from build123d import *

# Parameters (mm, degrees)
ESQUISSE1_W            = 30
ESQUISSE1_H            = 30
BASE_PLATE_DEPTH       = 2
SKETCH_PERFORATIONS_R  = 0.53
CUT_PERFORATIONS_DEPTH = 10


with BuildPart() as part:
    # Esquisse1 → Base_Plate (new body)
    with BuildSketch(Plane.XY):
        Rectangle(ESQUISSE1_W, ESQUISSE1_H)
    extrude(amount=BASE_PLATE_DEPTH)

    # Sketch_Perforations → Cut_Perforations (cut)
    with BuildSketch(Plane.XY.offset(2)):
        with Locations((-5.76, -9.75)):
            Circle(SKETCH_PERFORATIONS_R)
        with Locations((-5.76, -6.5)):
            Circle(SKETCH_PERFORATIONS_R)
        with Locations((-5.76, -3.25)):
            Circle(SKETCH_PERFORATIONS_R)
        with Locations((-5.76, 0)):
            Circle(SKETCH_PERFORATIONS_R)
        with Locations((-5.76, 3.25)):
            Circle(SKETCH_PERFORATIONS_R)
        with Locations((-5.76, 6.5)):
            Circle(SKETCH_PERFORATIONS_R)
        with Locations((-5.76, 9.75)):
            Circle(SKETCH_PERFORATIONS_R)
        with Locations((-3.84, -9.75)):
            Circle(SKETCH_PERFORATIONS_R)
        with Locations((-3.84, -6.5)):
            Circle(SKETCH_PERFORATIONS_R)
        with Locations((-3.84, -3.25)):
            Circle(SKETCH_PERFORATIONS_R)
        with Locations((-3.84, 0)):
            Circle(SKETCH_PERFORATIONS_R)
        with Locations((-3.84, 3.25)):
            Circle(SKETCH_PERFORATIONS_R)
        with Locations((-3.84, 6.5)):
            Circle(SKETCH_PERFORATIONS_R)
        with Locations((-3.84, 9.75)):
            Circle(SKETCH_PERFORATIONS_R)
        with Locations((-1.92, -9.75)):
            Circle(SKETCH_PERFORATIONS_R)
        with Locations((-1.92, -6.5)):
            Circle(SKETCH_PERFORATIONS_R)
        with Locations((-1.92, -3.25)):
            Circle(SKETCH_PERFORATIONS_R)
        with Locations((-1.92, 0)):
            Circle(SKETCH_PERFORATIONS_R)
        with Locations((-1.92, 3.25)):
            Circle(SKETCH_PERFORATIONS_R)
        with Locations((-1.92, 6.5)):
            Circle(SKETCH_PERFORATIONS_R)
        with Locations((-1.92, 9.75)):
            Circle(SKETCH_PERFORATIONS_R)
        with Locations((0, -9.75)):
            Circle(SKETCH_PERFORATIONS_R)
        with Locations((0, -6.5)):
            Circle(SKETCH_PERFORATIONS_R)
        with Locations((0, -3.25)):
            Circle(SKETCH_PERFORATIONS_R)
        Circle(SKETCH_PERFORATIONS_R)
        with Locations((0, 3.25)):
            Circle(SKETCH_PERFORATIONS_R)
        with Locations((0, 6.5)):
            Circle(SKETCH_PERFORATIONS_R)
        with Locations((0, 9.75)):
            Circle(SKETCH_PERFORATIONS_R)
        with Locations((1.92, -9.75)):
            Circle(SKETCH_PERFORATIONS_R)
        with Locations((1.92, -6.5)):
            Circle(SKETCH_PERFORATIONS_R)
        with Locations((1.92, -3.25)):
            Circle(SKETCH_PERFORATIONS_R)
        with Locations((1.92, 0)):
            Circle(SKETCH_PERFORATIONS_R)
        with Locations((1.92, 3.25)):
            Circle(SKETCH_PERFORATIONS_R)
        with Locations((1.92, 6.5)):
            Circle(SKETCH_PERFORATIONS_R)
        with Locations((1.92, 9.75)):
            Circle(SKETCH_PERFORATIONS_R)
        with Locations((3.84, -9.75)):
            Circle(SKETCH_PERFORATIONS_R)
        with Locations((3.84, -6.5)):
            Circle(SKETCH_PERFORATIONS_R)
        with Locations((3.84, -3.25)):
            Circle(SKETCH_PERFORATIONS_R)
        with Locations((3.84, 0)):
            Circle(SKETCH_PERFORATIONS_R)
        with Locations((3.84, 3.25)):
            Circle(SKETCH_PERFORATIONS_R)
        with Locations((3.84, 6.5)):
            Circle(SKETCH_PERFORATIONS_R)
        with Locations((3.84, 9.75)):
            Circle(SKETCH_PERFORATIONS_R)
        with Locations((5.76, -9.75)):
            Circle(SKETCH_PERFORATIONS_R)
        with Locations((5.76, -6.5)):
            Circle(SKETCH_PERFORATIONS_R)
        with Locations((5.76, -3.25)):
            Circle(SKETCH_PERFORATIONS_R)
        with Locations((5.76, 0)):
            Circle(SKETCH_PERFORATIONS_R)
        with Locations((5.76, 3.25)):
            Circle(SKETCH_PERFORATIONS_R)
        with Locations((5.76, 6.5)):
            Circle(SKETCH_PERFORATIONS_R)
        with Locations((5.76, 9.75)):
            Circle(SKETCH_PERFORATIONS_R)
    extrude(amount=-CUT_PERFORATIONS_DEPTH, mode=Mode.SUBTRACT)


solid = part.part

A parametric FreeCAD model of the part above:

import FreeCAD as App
import Part
import Sketcher

V = App.Vector


def add_polygon(sketch, points):
    """Adds a closed chain of lines whose ends are joined by coincident constraints."""
    first, n = sketch.GeometryCount, len(points)
    for a, b in zip(points, points[1:] + points[:1]):
        sketch.addGeometry(Part.LineSegment(App.Vector(*a, 0), App.Vector(*b, 0)), False)
    for i in range(n):
        sketch.addConstraint(Sketcher.Constraint("Coincident", first + i, 2, first + (i + 1) % n, 1))

doc = App.newDocument("Part")
body = doc.addObject("PartDesign::Body", "Body")

# Sketch on XY plane
sketch1 = doc.addObject("Sketcher::SketchObject", "Sketch")
body.addObject(sketch1)
sketch1.AttachmentSupport = (doc.XY_Plane, [""])
sketch1.MapMode = "FlatFace"
add_polygon(sketch1, [(-15, 15), (-15, -15), (15, -15), (15, 15)])  # lines 0-3
sketch1.addConstraint([
    Sketcher.Constraint("Vertical", 0),
    Sketcher.Constraint("Horizontal", 1),
    Sketcher.Constraint("Vertical", 2),
    Sketcher.Constraint("Horizontal", 3),
    Sketcher.Constraint("Symmetric", 0, 2, 2, 2, -1, 1),
    Sketcher.Constraint("Equal", 3, 0),
    Sketcher.Constraint("DistanceX", 1, 1, 1, 2, 30.0),
])
pad1 = doc.addObject("PartDesign::Pad", "Pad")
body.addObject(pad1)
pad1.Profile = sketch1
pad1.Length = 2

# Sketch on XY plane
sketch2 = doc.addObject("Sketcher::SketchObject", "Sketch001")
body.addObject(sketch2)
sketch2.AttachmentSupport = (doc.XY_Plane, [""])
sketch2.MapMode = "FlatFace"
sketch2.AttachmentOffset = App.Placement(V(0, 0, 2), App.Rotation())
sketch2.addGeometry([
    Part.Circle(V(-5.8, -9.8, 0), V(0, 0, 1), 0.5),  # 0
    Part.Circle(V(-5.8, -6.5, 0), V(0, 0, 1), 0.5),  # 1
    Part.Circle(V(-5.8, -3.2, 0), V(0, 0, 1), 0.5),  # 2
    Part.Circle(V(-5.8, 0, 0), V(0, 0, 1), 0.5),  # 3
    Part.Circle(V(-5.8, 3.2, 0), V(0, 0, 1), 0.5),  # 4
    Part.Circle(V(-5.8, 6.5, 0), V(0, 0, 1), 0.5),  # 5
    Part.Circle(V(-5.8, 9.8, 0), V(0, 0, 1), 0.5),  # 6
    Part.Circle(V(-3.8, -9.8, 0), V(0, 0, 1), 0.5),  # 7
    Part.Circle(V(-3.8, -6.5, 0), V(0, 0, 1), 0.5),  # 8
    Part.Circle(V(-3.8, -3.2, 0), V(0, 0, 1), 0.5),  # 9
    Part.Circle(V(-3.8, 0, 0), V(0, 0, 1), 0.5),  # 10
    Part.Circle(V(-3.8, 3.2, 0), V(0, 0, 1), 0.5),  # 11
    Part.Circle(V(-3.8, 6.5, 0), V(0, 0, 1), 0.5),  # 12
    Part.Circle(V(-3.8, 9.8, 0), V(0, 0, 1), 0.5),  # 13
    Part.Circle(V(-1.9, -9.8, 0), V(0, 0, 1), 0.5),  # 14
    Part.Circle(V(-1.9, -6.5, 0), V(0, 0, 1), 0.5),  # 15
    Part.Circle(V(-1.9, -3.2, 0), V(0, 0, 1), 0.5),  # 16
    Part.Circle(V(-1.9, 0, 0), V(0, 0, 1), 0.5),  # 17
    Part.Circle(V(-1.9, 3.2, 0), V(0, 0, 1), 0.5),  # 18
    Part.Circle(V(-1.9, 6.5, 0), V(0, 0, 1), 0.5),  # 19
    Part.Circle(V(-1.9, 9.8, 0), V(0, 0, 1), 0.5),  # 20
    Part.Circle(V(0, -9.8, 0), V(0, 0, 1), 0.5),  # 21
    Part.Circle(V(0, -6.5, 0), V(0, 0, 1), 0.5),  # 22
    Part.Circle(V(0, -3.2, 0), V(0, 0, 1), 0.5),  # 23
    Part.Circle(V(0, 0, 0), V(0, 0, 1), 0.5),  # 24
    Part.Circle(V(0, 3.2, 0), V(0, 0, 1), 0.5),  # 25
    Part.Circle(V(0, 6.5, 0), V(0, 0, 1), 0.5),  # 26
    Part.Circle(V(0, 9.8, 0), V(0, 0, 1), 0.5),  # 27
    Part.Circle(V(1.9, -9.8, 0), V(0, 0, 1), 0.5),  # 28
    Part.Circle(V(1.9, -6.5, 0), V(0, 0, 1), 0.5),  # 29
    Part.Circle(V(1.9, -3.2, 0), V(0, 0, 1), 0.5),  # 30
    Part.Circle(V(1.9, 0, 0), V(0, 0, 1), 0.5),  # 31
    Part.Circle(V(1.9, 3.2, 0), V(0, 0, 1), 0.5),  # 32
    Part.Circle(V(1.9, 6.5, 0), V(0, 0, 1), 0.5),  # 33
    Part.Circle(V(1.9, 9.8, 0), V(0, 0, 1), 0.5),  # 34
    Part.Circle(V(3.8, -9.8, 0), V(0, 0, 1), 0.5),  # 35
    Part.Circle(V(3.8, -6.5, 0), V(0, 0, 1), 0.5),  # 36
    Part.Circle(V(3.8, -3.2, 0), V(0, 0, 1), 0.5),  # 37
    Part.Circle(V(3.8, 0, 0), V(0, 0, 1), 0.5),  # 38
    Part.Circle(V(3.8, 3.2, 0), V(0, 0, 1), 0.5),  # 39
    Part.Circle(V(3.8, 6.5, 0), V(0, 0, 1), 0.5),  # 40
    Part.Circle(V(3.8, 9.8, 0), V(0, 0, 1), 0.5),  # 41
    Part.Circle(V(5.8, -9.8, 0), V(0, 0, 1), 0.5),  # 42
    Part.Circle(V(5.8, -6.5, 0), V(0, 0, 1), 0.5),  # 43
    Part.Circle(V(5.8, -3.2, 0), V(0, 0, 1), 0.5),  # 44
    Part.Circle(V(5.8, 0, 0), V(0, 0, 1), 0.5),  # 45
    Part.Circle(V(5.8, 3.2, 0), V(0, 0, 1), 0.5),  # 46
    Part.Circle(V(5.8, 6.5, 0), V(0, 0, 1), 0.5),  # 47
    Part.Circle(V(5.8, 9.8, 0), V(0, 0, 1), 0.5),  # 48
], False)
sketch2.addConstraint([
    Sketcher.Constraint("Coincident", 24, 3, -1, 1),
    Sketcher.Constraint("Equal", 0, 1),
    Sketcher.Constraint("Equal", 1, 2),
    Sketcher.Constraint("Equal", 2, 3),
    Sketcher.Constraint("Equal", 3, 4),
    Sketcher.Constraint("Equal", 4, 5),
    Sketcher.Constraint("Equal", 5, 6),
    Sketcher.Constraint("Equal", 6, 7),
    Sketcher.Constraint("Equal", 7, 8),
    Sketcher.Constraint("Equal", 8, 9),
    Sketcher.Constraint("Equal", 9, 10),
    Sketcher.Constraint("Equal", 10, 11),
    Sketcher.Constraint("Equal", 11, 12),
    Sketcher.Constraint("Equal", 12, 13),
    Sketcher.Constraint("Equal", 13, 14),
    Sketcher.Constraint("Equal", 14, 15),
    Sketcher.Constraint("Equal", 15, 16),
    Sketcher.Constraint("Equal", 16, 17),
    Sketcher.Constraint("Equal", 17, 18),
    Sketcher.Constraint("Equal", 18, 19),
    Sketcher.Constraint("Equal", 19, 20),
    Sketcher.Constraint("Equal", 20, 21),
    Sketcher.Constraint("Equal", 21, 22),
    Sketcher.Constraint("Equal", 22, 23),
    Sketcher.Constraint("Equal", 23, 24),
    Sketcher.Constraint("Equal", 24, 25),
    Sketcher.Constraint("Equal", 25, 26),
    Sketcher.Constraint("Equal", 26, 27),
    Sketcher.Constraint("Equal", 27, 28),
    Sketcher.Constraint("Equal", 28, 29),
    Sketcher.Constraint("Equal", 29, 30),
    Sketcher.Constraint("Equal", 30, 31),
    Sketcher.Constraint("Equal", 31, 32),
    Sketcher.Constraint("Equal", 32, 33),
    Sketcher.Constraint("Equal", 33, 34),
    Sketcher.Constraint("Equal", 34, 35),
    Sketcher.Constraint("Equal", 35, 36),
    Sketcher.Constraint("Equal", 36, 37),
    Sketcher.Constraint("Equal", 37, 38),
    Sketcher.Constraint("Equal", 38, 39),
    Sketcher.Constraint("Equal", 39, 40),
    Sketcher.Constraint("Equal", 40, 41),
    Sketcher.Constraint("Equal", 41, 42),
    Sketcher.Constraint("Equal", 42, 43),
    Sketcher.Constraint("Equal", 43, 44),
    Sketcher.Constraint("Equal", 44, 45),
    Sketcher.Constraint("Equal", 45, 46),
    Sketcher.Constraint("Equal", 46, 47),
    Sketcher.Constraint("Equal", 47, 48),
    Sketcher.Constraint("Symmetric", 23, 3, 25, 3, -1, 1),
    Sketcher.Constraint("Symmetric", 22, 3, 26, 3, -1, 1),
    Sketcher.Constraint("Symmetric", 21, 3, 27, 3, -1, 1),
    Sketcher.Constraint("Symmetric", 20, 3, 28, 3, -1, 1),
    Sketcher.Constraint("Symmetric", 19, 3, 29, 3, -1, 1),
    Sketcher.Constraint("Symmetric", 18, 3, 30, 3, -1, 1),
    Sketcher.Constraint("Symmetric", 17, 3, 31, 3, -1, 1),
    Sketcher.Constraint("Symmetric", 16, 3, 32, 3, -1, 1),
    Sketcher.Constraint("Symmetric", 15, 3, 33, 3, -1, 1),
    Sketcher.Constraint("Symmetric", 14, 3, 34, 3, -1, 1),
    Sketcher.Constraint("Symmetric", 13, 3, 35, 3, -1, 1),
    Sketcher.Constraint("Symmetric", 12, 3, 36, 3, -1, 1),
    Sketcher.Constraint("Symmetric", 11, 3, 37, 3, -1, 1),
    Sketcher.Constraint("Symmetric", 10, 3, 38, 3, -1, 1),
    Sketcher.Constraint("Symmetric", 9, 3, 39, 3, -1, 1),
    Sketcher.Constraint("Symmetric", 8, 3, 40, 3, -1, 1),
    Sketcher.Constraint("Symmetric", 7, 3, 41, 3, -1, 1),
    Sketcher.Constraint("Symmetric", 6, 3, 42, 3, -1, 1),
    Sketcher.Constraint("Symmetric", 5, 3, 43, 3, -1, 1),
    Sketcher.Constraint("Symmetric", 4, 3, 44, 3, -1, 1),
    Sketcher.Constraint("Symmetric", 3, 3, 45, 3, -1, 1),
    Sketcher.Constraint("Symmetric", 2, 3, 46, 3, -1, 1),
    Sketcher.Constraint("Symmetric", 1, 3, 47, 3, -1, 1),
    Sketcher.Constraint("Symmetric", 0, 3, 48, 3, -1, 1),
    Sketcher.Constraint("Symmetric", 14, 3, 28, 3, -2),
    Sketcher.Constraint("Symmetric", 15, 3, 29, 3, -2),
    Sketcher.Constraint("Symmetric", 16, 3, 30, 3, -2),
    Sketcher.Constraint("Symmetric", 7, 3, 35, 3, -2),
    Sketcher.Constraint("Symmetric", 8, 3, 36, 3, -2),
    Sketcher.Constraint("Symmetric", 9, 3, 37, 3, -2),
    Sketcher.Constraint("Symmetric", 0, 3, 42, 3, -2),
    Sketcher.Constraint("Symmetric", 1, 3, 43, 3, -2),
    Sketcher.Constraint("Symmetric", 2, 3, 44, 3, -2),
    Sketcher.Constraint("PointOnObject", 3, 3, -1),
    Sketcher.Constraint("PointOnObject", 10, 3, -1),
    Sketcher.Constraint("PointOnObject", 17, 3, -1),
    Sketcher.Constraint("PointOnObject", 21, 3, -2),
    Sketcher.Constraint("PointOnObject", 22, 3, -2),
    Sketcher.Constraint("PointOnObject", 23, 3, -2),
    Sketcher.Constraint("Horizontal", 0, 3, 7, 3),
    Sketcher.Constraint("Horizontal", 1, 3, 8, 3),
    Sketcher.Constraint("Horizontal", 2, 3, 9, 3),
    Sketcher.Constraint("Horizontal", 7, 3, 14, 3),
    Sketcher.Constraint("Horizontal", 8, 3, 15, 3),
    Sketcher.Constraint("Horizontal", 9, 3, 16, 3),
    Sketcher.Constraint("Horizontal", 14, 3, 21, 3),
    Sketcher.Constraint("Horizontal", 15, 3, 22, 3),
    Sketcher.Constraint("Horizontal", 16, 3, 23, 3),
    Sketcher.Constraint("Vertical", 0, 3, 1, 3),
    Sketcher.Constraint("Vertical", 1, 3, 2, 3),
    Sketcher.Constraint("Vertical", 2, 3, 3, 3),
    Sketcher.Constraint("Vertical", 7, 3, 8, 3),
    Sketcher.Constraint("Vertical", 8, 3, 9, 3),
    Sketcher.Constraint("Vertical", 9, 3, 10, 3),
    Sketcher.Constraint("Vertical", 14, 3, 15, 3),
    Sketcher.Constraint("Vertical", 15, 3, 16, 3),
    Sketcher.Constraint("Vertical", 16, 3, 17, 3),
    Sketcher.Constraint("Diameter", 0, 1.06),
    Sketcher.Constraint("DistanceY", 0, 3, 4, 3, 13.0),
    Sketcher.Constraint("DistanceY", 1, 3, 5, 3, 13.0),
    Sketcher.Constraint("DistanceY", 0, 3, 2, 3, 6.5),
    Sketcher.Constraint("DistanceX", 0, 3, -1, 1, 5.76),
    Sketcher.Constraint("DistanceX", 7, 3, -1, 1, 3.84),
    Sketcher.Constraint("DistanceX", 14, 3, -1, 1, 1.92),
])
pocket1 = doc.addObject("PartDesign::Pocket", "Pocket")
body.addObject(pocket1)
pocket1.Profile = sketch2
pocket1.Length = 10

doc.recompute()
